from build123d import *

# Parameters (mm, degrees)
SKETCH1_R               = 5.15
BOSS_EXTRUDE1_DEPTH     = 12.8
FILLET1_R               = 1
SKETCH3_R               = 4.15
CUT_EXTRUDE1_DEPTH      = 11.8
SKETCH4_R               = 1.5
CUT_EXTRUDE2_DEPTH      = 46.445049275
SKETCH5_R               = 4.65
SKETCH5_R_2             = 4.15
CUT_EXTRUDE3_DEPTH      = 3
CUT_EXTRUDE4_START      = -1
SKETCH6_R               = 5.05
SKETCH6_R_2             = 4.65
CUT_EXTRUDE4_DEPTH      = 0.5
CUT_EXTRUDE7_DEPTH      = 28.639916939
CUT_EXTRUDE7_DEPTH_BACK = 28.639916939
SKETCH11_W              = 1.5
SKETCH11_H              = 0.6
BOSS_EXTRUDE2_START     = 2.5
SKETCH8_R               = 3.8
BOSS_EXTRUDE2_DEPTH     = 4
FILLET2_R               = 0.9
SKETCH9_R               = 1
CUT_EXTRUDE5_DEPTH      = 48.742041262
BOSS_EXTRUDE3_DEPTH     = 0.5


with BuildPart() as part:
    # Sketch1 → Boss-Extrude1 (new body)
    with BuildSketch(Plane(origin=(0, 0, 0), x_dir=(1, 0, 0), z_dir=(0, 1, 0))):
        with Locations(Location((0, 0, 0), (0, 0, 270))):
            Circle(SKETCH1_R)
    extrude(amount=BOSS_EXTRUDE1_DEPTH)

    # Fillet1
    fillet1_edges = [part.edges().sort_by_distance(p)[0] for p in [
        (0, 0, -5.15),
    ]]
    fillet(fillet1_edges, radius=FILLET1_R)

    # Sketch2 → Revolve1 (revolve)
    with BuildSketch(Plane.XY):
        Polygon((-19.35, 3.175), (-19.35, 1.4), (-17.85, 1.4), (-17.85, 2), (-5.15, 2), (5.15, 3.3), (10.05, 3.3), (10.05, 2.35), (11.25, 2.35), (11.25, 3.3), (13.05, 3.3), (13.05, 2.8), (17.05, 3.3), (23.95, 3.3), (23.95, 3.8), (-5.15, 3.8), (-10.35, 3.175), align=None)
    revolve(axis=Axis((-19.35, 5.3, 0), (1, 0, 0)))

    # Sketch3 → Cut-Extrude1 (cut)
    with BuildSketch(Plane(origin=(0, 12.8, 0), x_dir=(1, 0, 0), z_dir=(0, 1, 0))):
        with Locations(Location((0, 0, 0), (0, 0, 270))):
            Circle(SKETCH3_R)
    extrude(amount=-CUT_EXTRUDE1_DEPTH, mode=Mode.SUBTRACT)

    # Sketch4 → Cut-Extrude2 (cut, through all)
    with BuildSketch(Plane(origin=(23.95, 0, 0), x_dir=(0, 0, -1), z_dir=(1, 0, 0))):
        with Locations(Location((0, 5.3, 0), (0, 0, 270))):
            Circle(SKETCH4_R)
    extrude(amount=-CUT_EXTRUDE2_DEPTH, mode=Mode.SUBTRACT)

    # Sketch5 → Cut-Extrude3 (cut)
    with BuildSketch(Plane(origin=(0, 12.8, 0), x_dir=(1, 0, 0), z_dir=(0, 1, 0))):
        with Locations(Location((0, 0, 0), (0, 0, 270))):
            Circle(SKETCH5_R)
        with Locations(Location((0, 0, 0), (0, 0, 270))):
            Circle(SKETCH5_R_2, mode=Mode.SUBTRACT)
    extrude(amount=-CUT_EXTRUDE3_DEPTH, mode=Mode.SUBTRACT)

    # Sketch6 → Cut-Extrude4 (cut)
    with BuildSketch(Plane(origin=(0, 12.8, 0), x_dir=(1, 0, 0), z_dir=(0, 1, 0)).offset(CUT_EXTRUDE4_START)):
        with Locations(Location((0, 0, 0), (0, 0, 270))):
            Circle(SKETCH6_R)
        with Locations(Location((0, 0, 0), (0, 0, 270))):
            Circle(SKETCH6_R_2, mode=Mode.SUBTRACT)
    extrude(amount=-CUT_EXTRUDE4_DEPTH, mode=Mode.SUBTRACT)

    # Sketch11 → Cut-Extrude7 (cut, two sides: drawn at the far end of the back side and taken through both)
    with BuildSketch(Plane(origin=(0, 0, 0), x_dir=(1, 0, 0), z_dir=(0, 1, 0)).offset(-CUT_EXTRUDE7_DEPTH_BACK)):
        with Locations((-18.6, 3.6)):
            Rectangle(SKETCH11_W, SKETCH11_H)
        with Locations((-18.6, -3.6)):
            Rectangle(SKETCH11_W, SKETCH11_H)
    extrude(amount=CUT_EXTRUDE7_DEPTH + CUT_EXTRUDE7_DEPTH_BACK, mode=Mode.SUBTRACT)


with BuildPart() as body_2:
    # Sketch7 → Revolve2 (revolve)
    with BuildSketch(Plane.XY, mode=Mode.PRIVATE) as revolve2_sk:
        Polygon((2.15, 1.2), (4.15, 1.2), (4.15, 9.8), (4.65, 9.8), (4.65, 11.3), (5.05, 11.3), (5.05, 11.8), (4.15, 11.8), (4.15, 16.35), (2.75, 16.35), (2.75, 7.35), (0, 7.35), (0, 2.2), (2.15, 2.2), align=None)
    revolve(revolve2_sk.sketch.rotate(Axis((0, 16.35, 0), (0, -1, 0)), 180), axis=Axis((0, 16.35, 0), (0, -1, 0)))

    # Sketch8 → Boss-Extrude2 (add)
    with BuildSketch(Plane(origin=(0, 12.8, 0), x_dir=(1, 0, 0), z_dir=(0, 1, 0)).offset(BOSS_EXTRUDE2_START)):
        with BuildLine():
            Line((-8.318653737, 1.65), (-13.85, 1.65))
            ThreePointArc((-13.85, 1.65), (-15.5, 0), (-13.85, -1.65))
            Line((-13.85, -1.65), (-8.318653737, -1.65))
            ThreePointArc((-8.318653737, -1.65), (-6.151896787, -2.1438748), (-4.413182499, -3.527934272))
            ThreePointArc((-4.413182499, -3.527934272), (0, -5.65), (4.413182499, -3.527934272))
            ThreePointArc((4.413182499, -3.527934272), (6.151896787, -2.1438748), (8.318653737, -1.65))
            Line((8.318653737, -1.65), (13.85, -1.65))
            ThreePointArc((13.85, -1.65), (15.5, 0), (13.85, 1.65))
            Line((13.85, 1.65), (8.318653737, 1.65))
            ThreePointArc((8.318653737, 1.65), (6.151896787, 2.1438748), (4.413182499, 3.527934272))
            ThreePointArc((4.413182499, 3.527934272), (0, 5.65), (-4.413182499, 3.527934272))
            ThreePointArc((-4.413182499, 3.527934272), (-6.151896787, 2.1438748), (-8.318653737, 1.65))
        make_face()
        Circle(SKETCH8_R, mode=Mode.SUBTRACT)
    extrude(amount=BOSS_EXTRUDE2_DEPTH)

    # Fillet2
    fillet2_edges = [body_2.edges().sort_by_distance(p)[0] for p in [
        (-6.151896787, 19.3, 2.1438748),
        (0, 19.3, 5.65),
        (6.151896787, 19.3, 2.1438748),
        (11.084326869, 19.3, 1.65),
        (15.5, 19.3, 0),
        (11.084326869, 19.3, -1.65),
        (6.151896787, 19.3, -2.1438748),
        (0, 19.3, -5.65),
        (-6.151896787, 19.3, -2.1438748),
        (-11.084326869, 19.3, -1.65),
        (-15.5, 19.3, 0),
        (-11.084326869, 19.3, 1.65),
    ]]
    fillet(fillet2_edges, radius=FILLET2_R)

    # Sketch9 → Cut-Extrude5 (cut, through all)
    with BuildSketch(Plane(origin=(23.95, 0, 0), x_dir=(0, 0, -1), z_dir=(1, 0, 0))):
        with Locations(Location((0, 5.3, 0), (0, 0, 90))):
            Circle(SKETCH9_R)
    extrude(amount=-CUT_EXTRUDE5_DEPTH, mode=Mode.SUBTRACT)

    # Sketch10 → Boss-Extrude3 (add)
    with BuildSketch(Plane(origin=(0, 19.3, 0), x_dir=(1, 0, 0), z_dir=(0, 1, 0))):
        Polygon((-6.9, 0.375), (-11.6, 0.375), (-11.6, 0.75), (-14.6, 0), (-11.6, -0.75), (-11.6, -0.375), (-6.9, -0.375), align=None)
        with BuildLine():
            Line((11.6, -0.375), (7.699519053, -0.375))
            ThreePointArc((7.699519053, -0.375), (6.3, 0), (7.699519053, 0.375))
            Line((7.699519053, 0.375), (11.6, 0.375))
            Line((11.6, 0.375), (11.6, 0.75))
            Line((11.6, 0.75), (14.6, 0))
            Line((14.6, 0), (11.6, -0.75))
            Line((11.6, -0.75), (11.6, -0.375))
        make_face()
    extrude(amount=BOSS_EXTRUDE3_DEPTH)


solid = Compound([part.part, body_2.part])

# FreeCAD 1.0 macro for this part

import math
import FreeCAD as App
import Part
import Sketcher

V = App.Vector
Q = App.Units.Quantity


def edges_at(feature, points):
    """Names of the edges that pass closest to the given points."""
    edges = feature.Shape.Edges
    near = lambda p: min(range(len(edges)), key=lambda i: edges[i].distToShape(Part.Vertex(*p))[0])
    return sorted({f"Edge{near(p) + 1}" for p in points})


def add_polygon(sketch, points):
    """Adds a closed chain of lines whose ends are joined by coincident constraints."""
    first, n = sketch.GeometryCount, len(points)
    for a, b in zip(points, points[1:] + points[:1]):
        sketch.addGeometry(Part.LineSegment(App.Vector(*a, 0), App.Vector(*b, 0)), False)
    for i in range(n):
        sketch.addConstraint(Sketcher.Constraint("Coincident", first + i, 2, first + (i + 1) % n, 1))

doc = App.newDocument("Part")
body = doc.addObject("PartDesign::Body", "Body")

# Sketch on XZ plane
sketch1 = body.newObject("Sketcher::SketchObject", "Sketch")
sketch1.AttachmentSupport = (doc.getObject("XZ_Plane"), [""])
sketch1.MapMode = "FlatFace"
sketch1.addGeometry(Part.Circle(V(0, 0, 0), V(0, 0, 1), 5), False)
sketch1.addConstraint([
    Sketcher.Constraint("Coincident", 0, 3, -1, 1),
    Sketcher.Constraint("Diameter", 0, Q("10.3 mm")),
])
pad1 = body.newObject("PartDesign::Pad", "Pad")
pad1.Profile = sketch1
pad1.Length = 12.8
pad1.Reversed = True
doc.recompute()

fillet = body.newObject("PartDesign::Fillet", "Fillet")
fillet.Base = (pad1, edges_at(pad1, [(0, 0, -5.15)]))
fillet.Radius = 1

# Sketch on XY plane
sketch2 = body.newObject("Sketcher::SketchObject", "Sketch001")
sketch2.AttachmentSupport = (doc.getObject("XY_Plane"), [""])
sketch2.MapMode = "FlatFace"
add_polygon(sketch2, [(-19.4, 3.2), (-19.4, 1.4), (-17.9, 1.4), (-17.9, 2), (-5.2, 2), (5.2, 3.3), (10.1, 3.3), (10.1, 2.4), (11.2, 2.4), (11.2, 3.3), (13.1, 3.3), (13.1, 2.8), (17.1, 3.3), (23.9, 3.3), (23.9, 3.8), (-5.2, 3.8), (-10.3, 3.2)])  # lines 0-16
sketch2.addGeometry(Part.LineSegment(V(-19.4, 5.3, 0), V(23.9, 5.3, 0)), True)  # axis
sketch2.addConstraint([
    Sketcher.Constraint("Vertical", 0),
    Sketcher.Constraint("Horizontal", 1),
    Sketcher.Constraint("Vertical", 2),
    Sketcher.Constraint("Horizontal", 3),
    Sketcher.Constraint("Horizontal", 5),
    Sketcher.Constraint("Vertical", 6),
    Sketcher.Constraint("Horizontal", 7),
    Sketcher.Constraint("Vertical", 8),
    Sketcher.Constraint("Horizontal", 9),
    Sketcher.Constraint("Vertical", 10),
    Sketcher.Constraint("Horizontal", 12),
    Sketcher.Constraint("Vertical", 13),
    Sketcher.Constraint("Horizontal", 14),
    Sketcher.Constraint("Horizontal", 16),
    Sketcher.Constraint("Horizontal", 17),
    Sketcher.Constraint("Horizontal", 5, 2, 8, 2),
    Sketcher.Constraint("Horizontal", 9, 2, 11, 2),
    Sketcher.Constraint("Vertical", 3, 2, 14, 2),
    Sketcher.Constraint("Vertical", 16, 2, 17, 1),
    Sketcher.Constraint("Vertical", 13, 2, 17, 2),
    Sketcher.Constraint("Equal", 10, 13),
    Sketcher.Constraint("DistanceX", 16, 2, 16, 1, Q("9 mm")),
    Sketcher.Constraint("DistanceX", 1, 1, 1, 2, Q("1.5 mm")),
    Sketcher.Constraint("DistanceX", 3, 1, 3, 2, Q("12.7 mm")),
    Sketcher.Constraint("DistanceX", 5, 1, 5, 2, Q("4.9 mm")),
    Sketcher.Constraint("DistanceX", 7, 1, 7, 2, Q("1.2 mm")),
    Sketcher.Constraint("DistanceX", 9, 1, 9, 2, Q("1.8 mm")),
    Sketcher.Constraint("DistanceX", 12, 1, 12, 2, Q("6.9 mm")),
    Sketcher.Constraint("DistanceX", 14, 2, 14, 1, Q("29.1 mm")),
    Sketcher.Constraint("DistanceY", 2, 1, 2, 2, Q("0.6 mm")),
    Sketcher.Constraint("DistanceY", 10, 2, 10, 1, Q("0.5 mm")),
    Sketcher.Constraint("DistanceY", -1, 1, 2, 2, Q("2 mm")),
    Sketcher.Constraint("DistanceX", 2, 2, 4, 2, Q("23 mm")),
    Sketcher.Constraint("DistanceY", 12, 2, 17, 2, Q("2 mm")),
    Sketcher.Constraint("DistanceY", 6, 2, 6, 1, Q("0.95 mm")),
    Sketcher.Constraint("DistanceY", -1, 1, 4, 2, Q("3.3 mm")),
    Sketcher.Constraint("DistanceY", 0, 2, 0, 1, Q("1.775 mm")),
    Sketcher.Constraint("DistanceX", 0, 2, -1, 1, Q("19.35 mm")),
])
revolution = body.newObject("PartDesign::Revolution", "Revolution")
revolution.Profile = sketch2
revolution.ReferenceAxis = (sketch2, ["Axis0"])
revolution.Angle = 360

# Sketch on XZ plane
sketch3 = body.newObject("Sketcher::SketchObject", "Sketch002")
sketch3.AttachmentSupport = (doc.getObject("XZ_Plane"), [""])
sketch3.MapMode = "FlatFace"
sketch3.AttachmentOffset = App.Placement(V(0, 0, -12.8), App.Rotation())
sketch3.addGeometry(Part.Circle(V(0, 0, 0), V(0, 0, 1), 4.2), False)
sketch3.addConstraint([
    Sketcher.Constraint("Coincident", 0, 3, -1, 1),
    Sketcher.Constraint("Diameter", 0, Q("8.3 mm")),
])
pocket1 = body.newObject("PartDesign::Pocket", "Pocket")
pocket1.Profile = sketch3
pocket1.Length = 11.8
pocket1.Reversed = True

# Sketch on YZ plane
sketch4 = body.newObject("Sketcher::SketchObject", "Sketch003")
sketch4.AttachmentSupport = (doc.getObject("YZ_Plane"), [""])
sketch4.MapMode = "FlatFace"
sketch4.AttachmentOffset = App.Placement(V(0, 0, 23.95), App.Rotation())
sketch4.addGeometry(Part.Circle(V(5.3, 0, 0), V(0, 0, 1), 1.5), False)
sketch4.addConstraint([
    Sketcher.Constraint("PointOnObject", 0, 3, -1),
    Sketcher.Constraint("Diameter", 0, Q("3 mm")),
    Sketcher.Constraint("DistanceX", -1, 1, 0, 3, Q("5.3 mm")),
])
pocket2 = body.newObject("PartDesign::Pocket", "Pocket001")
pocket2.Profile = sketch4
pocket2.Type = "ThroughAll"

# Sketch on XZ plane
sketch5 = body.newObject("Sketcher::SketchObject", "Sketch004")
sketch5.AttachmentSupport = (doc.getObject("XZ_Plane"), [""])
sketch5.MapMode = "FlatFace"
sketch5.AttachmentOffset = App.Placement(V(0, 0, -12.8), App.Rotation())
sketch5.addGeometry([
    Part.Circle(V(0, 0, 0), V(0, 0, 1), 4.7),
    Part.Circle(V(0, 0, 0), V(0, 0, 1), 4.2),
], False)
sketch5.addConstraint([
    Sketcher.Constraint("Coincident", 0, 3, -1, 1),
    Sketcher.Constraint("Coincident", 1, 3, -1, 1),
    Sketcher.Constraint("Diameter", 0, Q("9.3 mm")),
    Sketcher.Constraint("Diameter", 1, Q("8.3 mm")),
])
pocket3 = body.newObject("PartDesign::Pocket", "Pocket002")
pocket3.Profile = sketch5
pocket3.Length = 3
pocket3.Reversed = True

# Sketch on XZ plane
sketch6 = body.newObject("Sketcher::SketchObject", "Sketch005")
sketch6.AttachmentSupport = (doc.getObject("XZ_Plane"), [""])
sketch6.MapMode = "FlatFace"
sketch6.AttachmentOffset = App.Placement(V(0, 0, -11.8), App.Rotation())
sketch6.addGeometry([
    Part.Circle(V(0, 0, 0), V(0, 0, 1), 5),
    Part.Circle(V(0, 0, 0), V(0, 0, 1), 4.7),
], False)
sketch6.addConstraint([
    Sketcher.Constraint("Coincident", 0, 3, -1, 1),
    Sketcher.Constraint("Coincident", 1, 3, -1, 1),
    Sketcher.Constraint("Diameter", 0, Q("10.1 mm")),
    Sketcher.Constraint("Diameter", 1, Q("9.3 mm")),
])
pocket4 = body.newObject("PartDesign::Pocket", "Pocket003")
pocket4.Profile = sketch6
pocket4.Length = 0.5
pocket4.Reversed = True

# Sketch on XZ plane
sketch7 = body.newObject("Sketcher::SketchObject", "Sketch006")
sketch7.AttachmentSupport = (doc.getObject("XZ_Plane"), [""])
sketch7.MapMode = "FlatFace"
add_polygon(sketch7, [(-19.4, -3.9), (-19.4, -3.3), (-17.9, -3.3), (-17.9, -3.9)])  # lines 0-3
add_polygon(sketch7, [(-19.4, 3.3), (-19.4, 3.9), (-17.9, 3.9), (-17.9, 3.3)])  # lines 4-7
sketch7.addConstraint([
    Sketcher.Constraint("Vertical", 0),
    Sketcher.Constraint("Horizontal", 1),
    Sketcher.Constraint("Vertical", 2),
    Sketcher.Constraint("Horizontal", 3),
    Sketcher.Constraint("Vertical", 4),
    Sketcher.Constraint("Horizontal", 5),
    Sketcher.Constraint("Vertical", 6),
    Sketcher.Constraint("Horizontal", 7),
    Sketcher.Constraint("Symmetric", 3, 2, 4, 2, -1),
    Sketcher.Constraint("Symmetric", 1, 2, 6, 2, -1),
    Sketcher.Constraint("DistanceX", 1, 1, 1, 2, Q("1.5 mm")),
    Sketcher.Constraint("DistanceY", 0, 1, 0, 2, Q("0.6 mm")),
    Sketcher.Constraint("DistanceY", 0, 2, -1, 1, Q("3.3 mm")),
    Sketcher.Constraint("DistanceX", 0, 2, -1, 1, Q("19.35 mm")),
])
pocket5 = body.newObject("PartDesign::Pocket", "Pocket004")
pocket5.Profile = sketch7
pocket5.Type = "ThroughAll"
pocket5.Midplane = True
body2 = doc.addObject("PartDesign::Body", "Body001")

# Sketch on XY plane
sketch8 = body2.newObject("Sketcher::SketchObject", "Sketch007")
sketch8.AttachmentSupport = (doc.getObject("XY_Plane001"), [""])
sketch8.MapMode = "FlatFace"
add_polygon(sketch8, [(2.15, 1.2), (4.15, 1.2), (4.15, 9.8), (4.65, 9.8), (4.65, 11.3), (5.05, 11.3), (5.05, 11.8), (4.15, 11.8), (4.15, 16.35), (2.75, 16.35), (2.75, 7.35), (0, 7.35), (0, 2.2), (2.15, 2.2)])  # lines 0-13
sketch8.addConstraint([
    Sketcher.Constraint("Horizontal", 0),
    Sketcher.Constraint("Vertical", 1),
    Sketcher.Constraint("Horizontal", 2),
    Sketcher.Constraint("Vertical", 3),
    Sketcher.Constraint("Horizontal", 4),
    Sketcher.Constraint("Vertical", 5),
    Sketcher.Constraint("Horizontal", 6),
    Sketcher.Constraint("Vertical", 7),
    Sketcher.Constraint("Horizontal", 8),
    Sketcher.Constraint("Vertical", 9),
    Sketcher.Constraint("Horizontal", 10),
    Sketcher.Constraint("Vertical", 11),
    Sketcher.Constraint("Horizontal", 12),
    Sketcher.Constraint("Vertical", 13),
    Sketcher.Constraint("PointOnObject", 10, 2, -2),
    Sketcher.Constraint("Vertical", 1, 2, 6, 2),
    Sketcher.Constraint("Equal", 2, 5),
    Sketcher.Constraint("DistanceX", 0, 1, 0, 2, Q("2 mm")),
    Sketcher.Constraint("DistanceY", 9, 2, 9, 1, Q("9 mm")),
    Sketcher.Constraint("DistanceY", 13, 2, 13, 1, Q("1 mm")),
    Sketcher.Constraint("DistanceX", 2, 1, 2, 2, Q("0.5 mm")),
    Sketcher.Constraint("DistanceX", 4, 1, 4, 2, Q("0.4 mm")),
    Sketcher.Constraint("DistanceX", 8, 2, 8, 1, Q("1.4 mm")),
    Sketcher.Constraint("DistanceY", 1, 1, 1, 2, Q("8.6 mm")),
    Sketcher.Constraint("DistanceY", 3, 1, 3, 2, Q("1.5 mm")),
    Sketcher.Constraint("DistanceX", 10, 2, 10, 1, Q("2.75 mm")),
    Sketcher.Constraint("DistanceY", 7, 1, 7, 2, Q("4.55 mm")),
    Sketcher.Constraint("DistanceY", -1, 1, 0, 2, Q("1.2 mm")),
])
revolution2 = body2.newObject("PartDesign::Revolution", "Revolution001")
revolution2.Profile = sketch8
revolution2.ReferenceAxis = (sketch8, ["V_Axis"])
revolution2.Angle = 360

# Sketch on XZ plane
sketch9 = body2.newObject("Sketcher::SketchObject", "Sketch008")
sketch9.AttachmentSupport = (doc.getObject("XZ_Plane001"), [""])
sketch9.MapMode = "FlatFace"
sketch9.AttachmentOffset = App.Placement(V(0, 0, -15.3), App.Rotation())
sketch9.addGeometry([
    Part.LineSegment(V(-8.3, -1.6, 0), V(-13.8, -1.6, 0)),  # 0
    Part.ArcOfCircle(Part.Circle(V(-13.8, 0, 0), V(0, 0, 1), 1.6), math.radians(90), math.radians(270)),  # 1
    Part.LineSegment(V(-13.8, 1.6, 0), V(-8.3, 1.6, 0)),  # 2
    Part.ArcOfCircle(Part.Circle(V(-8.3, 6.7, 0), V(0, 0, 1), 5), math.radians(-90), math.radians(-39)),  # 3
    Part.ArcOfCircle(Part.Circle(V(0, 0, 0), V(0, 0, 1), 5.6), math.radians(39), math.radians(141)),  # 4
    Part.ArcOfCircle(Part.Circle(V(8.3, 6.7, 0), V(0, 0, 1), 5), math.radians(-141), math.radians(-90)),  # 5
    Part.LineSegment(V(8.3, 1.6, 0), V(13.8, 1.6, 0)),  # 6
    Part.ArcOfCircle(Part.Circle(V(13.8, 0, 0), V(0, 0, 1), 1.6), math.radians(-90), math.radians(90)),  # 7
    Part.LineSegment(V(13.8, -1.6, 0), V(8.3, -1.6, 0)),  # 8
    Part.ArcOfCircle(Part.Circle(V(8.3, -6.7, 0), V(0, 0, 1), 5), math.radians(90), math.radians(141)),  # 9
    Part.ArcOfCircle(Part.Circle(V(0, 0, 0), V(0, 0, 1), 5.6), math.radians(-141), math.radians(-39)),  # 10
    Part.ArcOfCircle(Part.Circle(V(-8.3, -6.7, 0), V(0, 0, 1), 5), math.radians(39), math.radians(90)),  # 11
    Part.Circle(V(0, 0, 0), V(0, 0, 1), 3.8),  # 12
], False)
sketch9.addConstraint([
    Sketcher.Constraint("Tangent", 0, 2, 1, 2),
    Sketcher.Constraint("Tangent", 1, 1, 2, 1),
    Sketcher.Constraint("Tangent", 2, 2, 3, 1),
    Sketcher.Constraint("Tangent", 3, 2, 4, 2),
    Sketcher.Constraint("Tangent", 4, 1, 5, 1),
    Sketcher.Constraint("Tangent", 5, 2, 6, 1),
    Sketcher.Constraint("Tangent", 6, 2, 7, 2),
    Sketcher.Constraint("Tangent", 7, 1, 8, 1),
    Sketcher.Constraint("Tangent", 8, 2, 9, 1),
    Sketcher.Constraint("Tangent", 9, 2, 10, 2),
    Sketcher.Constraint("Tangent", 10, 1, 11, 1),
    Sketcher.Constraint("Tangent", 11, 2, 0, 1),
    Sketcher.Constraint("Horizontal", 0),
    Sketcher.Constraint("Horizontal", 2),
    Sketcher.Constraint("Horizontal", 6),
    Sketcher.Constraint("Horizontal", 8),
    Sketcher.Constraint("Coincident", 4, 3, -1, 1),
    Sketcher.Constraint("Coincident", 10, 3, -1, 1),
    Sketcher.Constraint("Coincident", 12, 3, -1, 1),
    Sketcher.Constraint("Equal", 3, 5),
    Sketcher.Constraint("Equal", 1, 7),
    Sketcher.Constraint("Equal", 5, 9),
    Sketcher.Constraint("Equal", 4, 10),
    Sketcher.Constraint("Equal", 9, 11),
    Sketcher.Constraint("Symmetric", 1, 3, 7, 3, -1, 1),
    Sketcher.Constraint("PointOnObject", 1, 3, -1),
    Sketcher.Constraint("Radius", 3, Q("5 mm")),
    Sketcher.Constraint("Diameter", 12, Q("7.6 mm")),
    Sketcher.Constraint("Radius", 1, Q("1.65 mm")),
    Sketcher.Constraint("Radius", 4, Q("5.65 mm")),
    Sketcher.Constraint("DistanceX", 1, 3, 7, 3, Q("27.7 mm")),
])
pad2 = body2.newObject("PartDesign::Pad", "Pad001")
pad2.Profile = sketch9
pad2.Length = 4
pad2.Reversed = True
doc.recompute()

fillet2 = body2.newObject("PartDesign::Fillet", "Fillet001")
fillet2.Base = (pad2, edges_at(pad2, [
    (-6.152, 19.3, 2.144),
    (0, 19.3, 5.65),
    (6.152, 19.3, 2.144),
    (11.084, 19.3, 1.65),
    (15.5, 19.3, 0),
    (11.084, 19.3, -1.65),
    (6.152, 19.3, -2.144),
    (0, 19.3, -5.65),
    (-6.152, 19.3, -2.144),
    (-11.084, 19.3, -1.65),
    (-15.5, 19.3, 0),
    (-11.084, 19.3, 1.65),
]))
fillet2.Radius = 0.9

# Sketch on YZ plane
sketch10 = body2.newObject("Sketcher::SketchObject", "Sketch009")
sketch10.AttachmentSupport = (doc.getObject("YZ_Plane001"), [""])
sketch10.MapMode = "FlatFace"
sketch10.AttachmentOffset = App.Placement(V(0, 0, 23.95), App.Rotation())
sketch10.addGeometry(Part.Circle(V(5.3, 0, 0), V(0, 0, 1), 1), False)
sketch10.addConstraint([
    Sketcher.Constraint("PointOnObject", 0, 3, -1),
    Sketcher.Constraint("Diameter", 0, Q("2 mm")),
    Sketcher.Constraint("DistanceX", -1, 1, 0, 3, Q("5.3 mm")),
])
pocket6 = body2.newObject("PartDesign::Pocket", "Pocket005")
pocket6.Profile = sketch10
pocket6.Type = "ThroughAll"

# Sketch on XZ plane
sketch11 = body2.newObject("Sketcher::SketchObject", "Sketch010")
sketch11.AttachmentSupport = (doc.getObject("XZ_Plane001"), [""])
sketch11.MapMode = "FlatFace"
sketch11.AttachmentOffset = App.Placement(V(0, 0, -19.3), App.Rotation())
add_polygon(sketch11, [(-6.9, -0.38), (-11.6, -0.38), (-11.6, -0.75), (-14.6, 0), (-11.6, 0.75), (-11.6, 0.38), (-6.9, 0.38)])  # lines 0-6
sketch11.addGeometry(Part.LineSegment(V(7.7, 0.38, 0), V(11.6, 0.38, 0)), False)  # 7
sketch11.addGeometry(Part.LineSegment(V(11.6, 0.38, 0), V(11.6, 0.75, 0)), False)  # 8
sketch11.addGeometry(Part.LineSegment(V(11.6, 0.75, 0), V(14.6, 0, 0)), False)  # 9
sketch11.addGeometry(Part.LineSegment(V(14.6, 0, 0), V(11.6, -0.75, 0)), False)  # 10
sketch11.addGeometry(Part.LineSegment(V(11.6, -0.75, 0), V(11.6, -0.38, 0)), False)  # 11
sketch11.addGeometry(Part.LineSegment(V(11.6, -0.38, 0), V(7.7, -0.38, 0)), False)  # 12
sketch11.addGeometry(Part.ArcOfCircle(Part.Circle(V(7.05, 0, 0), V(0, 0, 1), 0.75), math.radians(30), math.radians(330)), False)  # 13
sketch11.addConstraint([
    Sketcher.Constraint("Coincident", 7, 2, 8, 1),
    Sketcher.Constraint("Coincident", 8, 2, 9, 1),
    Sketcher.Constraint("Coincident", 9, 2, 10, 1),
    Sketcher.Constraint("Coincident", 10, 2, 11, 1),
    Sketcher.Constraint("Coincident", 11, 2, 12, 1),
    Sketcher.Constraint("Coincident", 12, 2, 13, 2),
    Sketcher.Constraint("Coincident", 13, 1, 7, 1),
    Sketcher.Constraint("Horizontal", 0),
    Sketcher.Constraint("Vertical", 1),
    Sketcher.Constraint("Vertical", 4),
    Sketcher.Constraint("Horizontal", 5),
    Sketcher.Constraint("Vertical", 6),
    Sketcher.Constraint("Horizontal", 7),
    Sketcher.Constraint("Vertical", 8),
    Sketcher.Constraint("Vertical", 11),
    Sketcher.Constraint("Horizontal", 12),
    Sketcher.Constraint("Symmetric", 0, 2, 7, 2, -1, 1),
    Sketcher.Constraint("Symmetric", 2, 2, 9, 2, -1, 1),
    Sketcher.Constraint("Symmetric", 3, 2, 10, 2, -1, 1),
    Sketcher.Constraint("Symmetric", 4, 2, 7, 2, -2),
    Sketcher.Constraint("Symmetric", 12, 2, 13, 1, -1),
    Sketcher.Constraint("PointOnObject", 2, 2, -1),
    Sketcher.Constraint("Parallel", 2, 9),
    Sketcher.Constraint("Horizontal", 3, 2, 8, 2),
    Sketcher.Constraint("Radius", 13, Q("0.75 mm")),
    Sketcher.Constraint("DistanceX", 0, 2, 0, 1, Q("4.7 mm")),
    Sketcher.Constraint("DistanceX", 2, 2, 0, 2, Q("3 mm")),
    Sketcher.Constraint("DistanceY", 6, 2, 6, 1, Q("0.75 mm")),
    Sketcher.Constraint("DistanceX", 0, 2, -1, 1, Q("11.6 mm")),
    Sketcher.Constraint("DistanceY", 1, 2, 3, 2, Q("1.5 mm")),
    Sketcher.Constraint("DistanceX", -1, 1, 13, 3, Q("7.05 mm")),
])
pad3 = body2.newObject("PartDesign::Pad", "Pad002")
pad3.Profile = sketch11
pad3.Length = 0.5
pad3.Reversed = True

doc.recompute()
